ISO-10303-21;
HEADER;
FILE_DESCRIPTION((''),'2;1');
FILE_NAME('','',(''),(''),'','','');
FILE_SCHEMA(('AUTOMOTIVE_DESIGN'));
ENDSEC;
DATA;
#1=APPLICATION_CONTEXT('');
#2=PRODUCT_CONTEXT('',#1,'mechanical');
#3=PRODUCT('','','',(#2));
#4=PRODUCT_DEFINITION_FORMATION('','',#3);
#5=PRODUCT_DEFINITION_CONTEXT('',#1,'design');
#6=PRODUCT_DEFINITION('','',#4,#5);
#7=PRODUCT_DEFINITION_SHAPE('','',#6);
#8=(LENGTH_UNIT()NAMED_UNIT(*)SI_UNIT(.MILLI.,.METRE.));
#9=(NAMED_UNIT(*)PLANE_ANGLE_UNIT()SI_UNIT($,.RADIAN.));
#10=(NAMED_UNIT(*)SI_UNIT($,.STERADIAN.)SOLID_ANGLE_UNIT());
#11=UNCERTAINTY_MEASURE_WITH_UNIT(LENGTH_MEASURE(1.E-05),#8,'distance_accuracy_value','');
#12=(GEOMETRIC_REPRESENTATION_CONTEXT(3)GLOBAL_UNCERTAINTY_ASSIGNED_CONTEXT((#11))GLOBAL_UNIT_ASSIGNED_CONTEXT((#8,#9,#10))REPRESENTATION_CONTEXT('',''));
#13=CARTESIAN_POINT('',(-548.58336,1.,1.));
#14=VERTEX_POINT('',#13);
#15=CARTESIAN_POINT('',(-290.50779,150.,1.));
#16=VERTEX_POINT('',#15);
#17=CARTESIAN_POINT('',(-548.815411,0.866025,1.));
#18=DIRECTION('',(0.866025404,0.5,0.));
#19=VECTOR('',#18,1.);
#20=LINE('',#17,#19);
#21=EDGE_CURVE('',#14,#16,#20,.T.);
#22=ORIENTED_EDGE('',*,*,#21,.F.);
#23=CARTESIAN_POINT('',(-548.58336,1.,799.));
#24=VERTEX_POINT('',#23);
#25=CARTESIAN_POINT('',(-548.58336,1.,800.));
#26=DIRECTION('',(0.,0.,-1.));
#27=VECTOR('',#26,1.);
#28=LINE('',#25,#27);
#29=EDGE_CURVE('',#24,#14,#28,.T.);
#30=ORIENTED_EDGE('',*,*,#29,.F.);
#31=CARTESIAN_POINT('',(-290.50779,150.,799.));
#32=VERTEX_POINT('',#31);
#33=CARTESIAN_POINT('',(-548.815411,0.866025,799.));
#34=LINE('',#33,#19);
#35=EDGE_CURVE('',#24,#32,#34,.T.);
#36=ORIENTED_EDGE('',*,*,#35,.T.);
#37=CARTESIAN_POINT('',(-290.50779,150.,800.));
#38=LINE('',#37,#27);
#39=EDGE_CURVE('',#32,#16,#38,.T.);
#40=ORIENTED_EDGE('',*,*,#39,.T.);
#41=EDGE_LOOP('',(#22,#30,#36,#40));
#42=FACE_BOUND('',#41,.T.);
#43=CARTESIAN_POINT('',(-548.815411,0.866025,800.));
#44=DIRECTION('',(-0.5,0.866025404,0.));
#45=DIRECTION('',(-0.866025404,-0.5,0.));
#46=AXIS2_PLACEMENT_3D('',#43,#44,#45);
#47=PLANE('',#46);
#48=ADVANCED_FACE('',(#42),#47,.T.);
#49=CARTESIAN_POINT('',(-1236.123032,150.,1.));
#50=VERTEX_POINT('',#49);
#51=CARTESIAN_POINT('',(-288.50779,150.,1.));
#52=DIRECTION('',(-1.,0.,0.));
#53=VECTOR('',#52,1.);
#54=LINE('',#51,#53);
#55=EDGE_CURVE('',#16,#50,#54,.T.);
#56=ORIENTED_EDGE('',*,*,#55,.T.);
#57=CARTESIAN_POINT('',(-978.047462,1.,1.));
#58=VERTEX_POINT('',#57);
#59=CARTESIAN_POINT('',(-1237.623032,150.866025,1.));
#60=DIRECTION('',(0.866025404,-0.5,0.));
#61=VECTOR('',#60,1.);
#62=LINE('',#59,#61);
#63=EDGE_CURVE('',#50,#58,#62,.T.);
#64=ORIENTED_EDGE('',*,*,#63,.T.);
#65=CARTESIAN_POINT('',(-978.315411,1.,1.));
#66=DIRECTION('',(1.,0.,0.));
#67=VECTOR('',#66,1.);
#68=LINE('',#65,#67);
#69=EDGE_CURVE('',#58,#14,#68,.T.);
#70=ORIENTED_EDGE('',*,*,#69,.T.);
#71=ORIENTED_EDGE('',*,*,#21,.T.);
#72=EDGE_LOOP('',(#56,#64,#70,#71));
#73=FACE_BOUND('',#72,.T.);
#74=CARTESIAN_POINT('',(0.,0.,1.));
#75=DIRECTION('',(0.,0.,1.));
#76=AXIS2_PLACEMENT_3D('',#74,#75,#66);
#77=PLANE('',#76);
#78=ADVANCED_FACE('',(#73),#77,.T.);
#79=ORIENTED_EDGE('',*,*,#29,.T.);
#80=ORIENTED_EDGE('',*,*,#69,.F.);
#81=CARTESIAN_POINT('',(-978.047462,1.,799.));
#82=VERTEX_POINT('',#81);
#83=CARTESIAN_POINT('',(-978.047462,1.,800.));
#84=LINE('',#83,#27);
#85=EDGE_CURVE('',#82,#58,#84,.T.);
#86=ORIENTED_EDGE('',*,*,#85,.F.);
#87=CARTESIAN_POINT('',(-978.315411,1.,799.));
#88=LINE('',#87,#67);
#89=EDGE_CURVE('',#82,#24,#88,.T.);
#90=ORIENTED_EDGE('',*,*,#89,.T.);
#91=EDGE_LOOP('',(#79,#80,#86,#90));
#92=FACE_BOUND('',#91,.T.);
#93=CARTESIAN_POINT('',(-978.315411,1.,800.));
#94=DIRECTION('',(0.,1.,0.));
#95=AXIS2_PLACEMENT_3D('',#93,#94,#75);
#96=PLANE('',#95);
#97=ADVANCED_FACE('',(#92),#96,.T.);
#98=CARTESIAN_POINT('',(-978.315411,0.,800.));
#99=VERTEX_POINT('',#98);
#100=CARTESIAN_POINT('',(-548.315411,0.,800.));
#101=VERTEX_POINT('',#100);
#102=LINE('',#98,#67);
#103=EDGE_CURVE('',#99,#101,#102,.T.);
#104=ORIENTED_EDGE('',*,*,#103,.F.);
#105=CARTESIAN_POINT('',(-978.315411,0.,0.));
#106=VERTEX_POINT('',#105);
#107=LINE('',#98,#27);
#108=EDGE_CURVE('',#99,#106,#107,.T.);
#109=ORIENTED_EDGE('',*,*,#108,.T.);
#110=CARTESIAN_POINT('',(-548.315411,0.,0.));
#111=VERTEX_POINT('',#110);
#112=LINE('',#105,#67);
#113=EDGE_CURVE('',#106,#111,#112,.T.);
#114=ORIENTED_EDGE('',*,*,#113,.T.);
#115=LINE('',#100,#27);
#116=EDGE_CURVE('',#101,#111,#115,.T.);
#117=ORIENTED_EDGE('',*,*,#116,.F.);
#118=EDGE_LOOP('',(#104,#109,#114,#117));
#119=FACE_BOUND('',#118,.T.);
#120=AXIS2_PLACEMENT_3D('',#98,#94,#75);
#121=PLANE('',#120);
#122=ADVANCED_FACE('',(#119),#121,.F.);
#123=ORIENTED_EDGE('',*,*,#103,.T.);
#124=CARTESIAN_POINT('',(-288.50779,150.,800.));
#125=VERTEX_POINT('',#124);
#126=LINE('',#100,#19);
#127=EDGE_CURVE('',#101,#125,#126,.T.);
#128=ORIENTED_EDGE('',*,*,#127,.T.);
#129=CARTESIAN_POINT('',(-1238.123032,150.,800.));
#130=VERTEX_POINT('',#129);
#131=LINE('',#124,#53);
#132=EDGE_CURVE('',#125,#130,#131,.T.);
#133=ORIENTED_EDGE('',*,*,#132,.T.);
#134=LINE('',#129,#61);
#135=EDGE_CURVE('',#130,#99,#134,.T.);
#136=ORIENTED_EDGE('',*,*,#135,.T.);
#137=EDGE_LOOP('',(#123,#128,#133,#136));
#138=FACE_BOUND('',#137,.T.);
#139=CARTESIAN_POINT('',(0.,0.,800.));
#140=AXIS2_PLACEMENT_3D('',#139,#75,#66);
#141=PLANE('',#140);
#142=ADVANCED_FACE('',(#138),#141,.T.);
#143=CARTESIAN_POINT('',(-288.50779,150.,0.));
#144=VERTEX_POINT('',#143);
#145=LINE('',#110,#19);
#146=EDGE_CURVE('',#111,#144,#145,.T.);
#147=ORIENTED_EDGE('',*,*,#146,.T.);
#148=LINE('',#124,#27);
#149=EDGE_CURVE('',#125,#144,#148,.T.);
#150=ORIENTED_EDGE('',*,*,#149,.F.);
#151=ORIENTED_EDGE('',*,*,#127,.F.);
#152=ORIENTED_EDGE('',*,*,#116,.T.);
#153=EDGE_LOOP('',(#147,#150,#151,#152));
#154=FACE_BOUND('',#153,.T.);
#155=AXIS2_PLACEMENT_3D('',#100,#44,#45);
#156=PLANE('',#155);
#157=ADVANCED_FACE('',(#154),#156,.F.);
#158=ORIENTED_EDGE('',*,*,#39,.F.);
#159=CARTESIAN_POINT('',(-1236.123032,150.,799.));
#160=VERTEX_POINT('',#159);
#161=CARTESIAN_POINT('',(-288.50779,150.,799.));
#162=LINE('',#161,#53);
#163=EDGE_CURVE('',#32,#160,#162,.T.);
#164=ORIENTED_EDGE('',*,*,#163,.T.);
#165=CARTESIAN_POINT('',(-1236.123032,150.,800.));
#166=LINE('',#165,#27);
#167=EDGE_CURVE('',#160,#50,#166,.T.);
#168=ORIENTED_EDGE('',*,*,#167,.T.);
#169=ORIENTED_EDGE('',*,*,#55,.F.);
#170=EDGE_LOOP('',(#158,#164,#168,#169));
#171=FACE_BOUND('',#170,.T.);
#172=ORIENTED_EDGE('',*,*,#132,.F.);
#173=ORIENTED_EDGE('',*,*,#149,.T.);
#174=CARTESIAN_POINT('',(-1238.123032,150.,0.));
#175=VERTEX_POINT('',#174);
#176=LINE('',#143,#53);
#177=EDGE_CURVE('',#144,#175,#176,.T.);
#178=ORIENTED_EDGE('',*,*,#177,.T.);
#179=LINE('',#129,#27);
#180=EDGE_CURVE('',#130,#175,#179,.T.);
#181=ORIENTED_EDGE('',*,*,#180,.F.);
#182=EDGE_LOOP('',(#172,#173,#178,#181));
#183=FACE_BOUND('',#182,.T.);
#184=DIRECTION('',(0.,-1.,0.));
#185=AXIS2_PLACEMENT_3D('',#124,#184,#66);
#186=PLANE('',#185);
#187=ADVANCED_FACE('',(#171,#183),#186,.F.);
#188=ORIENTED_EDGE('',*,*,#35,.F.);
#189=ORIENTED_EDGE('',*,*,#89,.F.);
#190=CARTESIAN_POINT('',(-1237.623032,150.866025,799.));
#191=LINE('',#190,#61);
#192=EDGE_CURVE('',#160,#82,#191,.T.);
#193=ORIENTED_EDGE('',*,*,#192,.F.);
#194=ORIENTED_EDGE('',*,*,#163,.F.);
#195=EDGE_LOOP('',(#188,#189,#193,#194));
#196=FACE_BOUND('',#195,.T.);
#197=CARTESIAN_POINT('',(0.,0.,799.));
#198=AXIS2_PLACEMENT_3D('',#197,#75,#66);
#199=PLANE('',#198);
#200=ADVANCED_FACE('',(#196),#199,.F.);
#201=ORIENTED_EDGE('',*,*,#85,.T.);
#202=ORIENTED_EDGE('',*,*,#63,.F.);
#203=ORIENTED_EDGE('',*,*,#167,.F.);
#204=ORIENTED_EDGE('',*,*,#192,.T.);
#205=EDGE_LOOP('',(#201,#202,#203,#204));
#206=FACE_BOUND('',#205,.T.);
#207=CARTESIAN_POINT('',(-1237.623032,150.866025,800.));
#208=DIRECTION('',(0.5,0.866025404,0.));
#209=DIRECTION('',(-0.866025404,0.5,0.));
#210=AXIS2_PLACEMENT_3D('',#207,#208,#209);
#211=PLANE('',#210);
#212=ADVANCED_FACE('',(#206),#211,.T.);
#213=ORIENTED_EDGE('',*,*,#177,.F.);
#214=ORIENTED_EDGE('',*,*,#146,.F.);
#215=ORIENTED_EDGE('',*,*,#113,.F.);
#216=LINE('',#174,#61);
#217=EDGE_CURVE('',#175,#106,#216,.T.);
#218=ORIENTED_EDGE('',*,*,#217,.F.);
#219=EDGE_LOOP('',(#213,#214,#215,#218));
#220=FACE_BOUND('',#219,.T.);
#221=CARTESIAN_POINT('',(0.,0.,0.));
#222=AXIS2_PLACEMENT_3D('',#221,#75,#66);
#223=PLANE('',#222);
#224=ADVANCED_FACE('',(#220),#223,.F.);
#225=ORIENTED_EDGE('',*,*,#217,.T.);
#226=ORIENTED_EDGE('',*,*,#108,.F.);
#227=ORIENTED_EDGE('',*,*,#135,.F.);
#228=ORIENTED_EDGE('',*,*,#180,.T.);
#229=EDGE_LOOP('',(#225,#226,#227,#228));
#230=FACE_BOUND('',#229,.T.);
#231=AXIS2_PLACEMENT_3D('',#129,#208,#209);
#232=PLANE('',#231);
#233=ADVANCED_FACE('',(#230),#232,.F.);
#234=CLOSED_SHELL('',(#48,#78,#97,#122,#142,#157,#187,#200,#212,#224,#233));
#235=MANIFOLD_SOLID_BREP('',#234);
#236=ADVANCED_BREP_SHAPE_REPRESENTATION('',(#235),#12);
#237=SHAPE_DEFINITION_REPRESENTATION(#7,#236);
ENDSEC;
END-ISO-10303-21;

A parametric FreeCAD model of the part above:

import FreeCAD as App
import Part
import Sketcher

V = App.Vector
Q = App.Units.Quantity


def faces_at(feature, points):
    """Names of the faces that lie closest to the given points."""
    faces = feature.Shape.Faces
    near = lambda p: min(range(len(faces)), key=lambda i: faces[i].distToShape(Part.Vertex(*p))[0])
    return sorted({f"Face{near(p) + 1}" for p in points})


def add_polygon(sketch, points):
    """Adds a closed chain of lines whose ends are joined by coincident constraints."""
    first, n = sketch.GeometryCount, len(points)
    for a, b in zip(points, points[1:] + points[:1]):
        sketch.addGeometry(Part.LineSegment(App.Vector(*a, 0), App.Vector(*b, 0)), False)
    for i in range(n):
        sketch.addConstraint(Sketcher.Constraint("Coincident", first + i, 2, first + (i + 1) % n, 1))

doc = App.newDocument("Part")
body = doc.addObject("PartDesign::Body", "Body")

# Sketch on XY plane
sketch1 = body.newObject("Sketcher::SketchObject", "Sketch")
sketch1.AttachmentSupport = (doc.getObject("XY_Plane"), [""])
sketch1.MapMode = "FlatFace"
add_polygon(sketch1, [(-978.315411, 0), (-548.315411, 0), (-288.50779, 150), (-1238.123032, 150)])  # lines 0-3
sketch1.addConstraint(Sketcher.Constraint("Horizontal", 0))
sketch1.addConstraint(Sketcher.Constraint("Horizontal", 2))
sketch1.addConstraint(Sketcher.Constraint("PointOnObject", 0, 2, -1))
sketch1.addConstraint(Sketcher.Constraint("Equal", 1, 3))
sketch1.addConstraint(Sketcher.Constraint("DistanceX", 0, 1, 0, 2, 430.0))
sketch1.addConstraint(Sketcher.Constraint("Angle", 1, Q("30 deg")))
sketch1.addConstraint(Sketcher.Constraint("Distance", 1, 300.0))
sketch1.addConstraint(Sketcher.Constraint("DistanceX", 0, 2, -1, 1, 548.315411))
pad1 = body.newObject("PartDesign::Pad", "Pad")
pad1.Profile = sketch1
pad1.Length = 800
doc.recompute()

thickness = body.newObject("PartDesign::Thickness", "Thickness")
thickness.Base = (pad1, faces_at(pad1, [(-763.315, 150, 400)]))
thickness.Value = 1
thickness.Reversed = True
thickness.Join = "Intersection"

doc.recompute()
